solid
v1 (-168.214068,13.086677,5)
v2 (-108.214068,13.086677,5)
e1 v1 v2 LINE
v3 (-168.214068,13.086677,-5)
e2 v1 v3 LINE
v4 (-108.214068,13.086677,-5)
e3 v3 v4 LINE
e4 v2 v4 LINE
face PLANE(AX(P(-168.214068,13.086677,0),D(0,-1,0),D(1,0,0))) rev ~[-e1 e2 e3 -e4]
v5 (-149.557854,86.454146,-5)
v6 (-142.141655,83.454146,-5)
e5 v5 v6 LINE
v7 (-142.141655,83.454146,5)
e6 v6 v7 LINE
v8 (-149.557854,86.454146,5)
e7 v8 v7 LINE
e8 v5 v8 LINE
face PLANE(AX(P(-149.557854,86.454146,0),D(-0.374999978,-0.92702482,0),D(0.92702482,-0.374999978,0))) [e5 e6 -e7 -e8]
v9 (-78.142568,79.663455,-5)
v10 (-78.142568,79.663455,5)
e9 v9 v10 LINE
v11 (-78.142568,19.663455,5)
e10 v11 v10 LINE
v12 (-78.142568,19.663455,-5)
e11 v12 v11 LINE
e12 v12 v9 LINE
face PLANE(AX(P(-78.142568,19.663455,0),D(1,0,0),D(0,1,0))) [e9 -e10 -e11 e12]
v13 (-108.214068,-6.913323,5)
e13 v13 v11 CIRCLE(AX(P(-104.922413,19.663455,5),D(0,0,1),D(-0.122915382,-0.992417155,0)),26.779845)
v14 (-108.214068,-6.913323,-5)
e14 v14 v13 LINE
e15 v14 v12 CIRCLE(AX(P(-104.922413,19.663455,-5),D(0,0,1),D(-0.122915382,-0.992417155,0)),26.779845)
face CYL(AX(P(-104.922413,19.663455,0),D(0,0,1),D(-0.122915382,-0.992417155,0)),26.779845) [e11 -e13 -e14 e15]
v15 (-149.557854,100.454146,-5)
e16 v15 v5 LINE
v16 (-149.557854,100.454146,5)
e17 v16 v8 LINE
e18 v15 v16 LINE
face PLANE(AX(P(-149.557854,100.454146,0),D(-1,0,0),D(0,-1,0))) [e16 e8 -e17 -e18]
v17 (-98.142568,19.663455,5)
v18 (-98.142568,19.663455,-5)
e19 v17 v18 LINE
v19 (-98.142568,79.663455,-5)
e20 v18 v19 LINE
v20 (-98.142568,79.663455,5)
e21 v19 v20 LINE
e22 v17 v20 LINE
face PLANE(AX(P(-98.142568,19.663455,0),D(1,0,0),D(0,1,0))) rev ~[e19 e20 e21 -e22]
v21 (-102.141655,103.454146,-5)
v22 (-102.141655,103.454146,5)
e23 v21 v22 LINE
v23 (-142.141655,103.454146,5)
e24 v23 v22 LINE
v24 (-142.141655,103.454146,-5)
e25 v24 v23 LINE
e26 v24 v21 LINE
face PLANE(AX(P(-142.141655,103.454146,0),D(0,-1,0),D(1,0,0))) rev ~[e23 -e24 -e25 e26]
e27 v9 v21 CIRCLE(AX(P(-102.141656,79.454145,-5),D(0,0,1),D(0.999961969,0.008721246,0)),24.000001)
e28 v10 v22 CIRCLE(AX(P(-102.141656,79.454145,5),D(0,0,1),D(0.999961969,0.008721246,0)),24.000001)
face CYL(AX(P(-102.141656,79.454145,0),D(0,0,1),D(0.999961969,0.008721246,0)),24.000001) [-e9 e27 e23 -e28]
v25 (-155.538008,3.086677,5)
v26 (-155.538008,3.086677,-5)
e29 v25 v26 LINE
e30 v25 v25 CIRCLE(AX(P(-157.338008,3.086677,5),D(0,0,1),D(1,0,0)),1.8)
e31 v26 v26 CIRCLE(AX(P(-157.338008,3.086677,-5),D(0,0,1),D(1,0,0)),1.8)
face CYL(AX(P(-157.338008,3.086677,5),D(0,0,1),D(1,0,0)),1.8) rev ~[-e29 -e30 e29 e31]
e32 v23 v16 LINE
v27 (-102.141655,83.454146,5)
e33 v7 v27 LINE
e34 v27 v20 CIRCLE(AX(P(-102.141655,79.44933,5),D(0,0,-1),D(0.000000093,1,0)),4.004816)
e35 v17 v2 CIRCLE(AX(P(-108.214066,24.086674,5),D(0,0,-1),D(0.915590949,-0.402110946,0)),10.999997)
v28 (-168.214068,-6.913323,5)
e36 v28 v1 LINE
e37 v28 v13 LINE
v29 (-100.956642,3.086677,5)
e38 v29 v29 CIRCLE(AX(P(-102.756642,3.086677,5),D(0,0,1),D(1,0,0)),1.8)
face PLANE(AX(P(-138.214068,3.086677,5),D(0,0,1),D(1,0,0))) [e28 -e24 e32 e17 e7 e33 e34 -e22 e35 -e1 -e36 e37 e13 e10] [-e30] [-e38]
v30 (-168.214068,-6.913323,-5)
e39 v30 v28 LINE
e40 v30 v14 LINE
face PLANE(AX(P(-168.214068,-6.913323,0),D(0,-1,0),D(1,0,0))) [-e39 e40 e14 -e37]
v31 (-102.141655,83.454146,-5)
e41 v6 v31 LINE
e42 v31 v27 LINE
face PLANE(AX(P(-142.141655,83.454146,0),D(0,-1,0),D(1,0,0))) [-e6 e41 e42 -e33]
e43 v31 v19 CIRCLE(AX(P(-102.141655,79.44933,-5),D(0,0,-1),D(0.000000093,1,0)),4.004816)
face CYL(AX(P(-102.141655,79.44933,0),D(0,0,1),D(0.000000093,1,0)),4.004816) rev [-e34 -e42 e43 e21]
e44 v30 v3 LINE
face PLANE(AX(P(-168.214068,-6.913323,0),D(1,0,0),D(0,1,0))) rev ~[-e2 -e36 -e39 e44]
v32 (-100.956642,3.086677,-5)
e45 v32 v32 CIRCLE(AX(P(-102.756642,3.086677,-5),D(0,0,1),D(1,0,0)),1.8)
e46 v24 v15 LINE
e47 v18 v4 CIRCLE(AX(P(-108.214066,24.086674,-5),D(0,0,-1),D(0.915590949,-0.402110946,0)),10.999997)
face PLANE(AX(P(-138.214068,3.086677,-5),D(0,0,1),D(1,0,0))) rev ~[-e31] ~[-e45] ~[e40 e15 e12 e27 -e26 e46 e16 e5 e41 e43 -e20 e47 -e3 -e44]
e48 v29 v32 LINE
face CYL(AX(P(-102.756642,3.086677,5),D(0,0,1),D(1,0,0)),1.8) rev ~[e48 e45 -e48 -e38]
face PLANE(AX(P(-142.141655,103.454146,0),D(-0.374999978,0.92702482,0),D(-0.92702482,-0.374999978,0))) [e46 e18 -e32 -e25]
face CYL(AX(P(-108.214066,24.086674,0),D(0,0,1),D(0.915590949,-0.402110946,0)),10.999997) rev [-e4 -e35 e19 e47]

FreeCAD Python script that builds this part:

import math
import FreeCAD as App
import Part
import Sketcher
from FreeCAD import Vector

doc = App.newDocument("Part")
body = doc.addObject("PartDesign::Body", "Body")

sketch1 = body.newObject("Sketcher::SketchObject", "Sketch")
sketch1.AttachmentSupport = (doc.getObject("XY_Plane"), [""])
sketch1.MapMode = "FlatFace"
sketch1.addGeometry(Part.LineSegment(Vector(-168.2, 13.1, 0), Vector(-168.2, -6.9, 0)), False)
sketch1.addGeometry(Part.LineSegment(Vector(-168.2, -6.9, 0), Vector(-108.2, -6.9, 0)), False)
sketch1.addGeometry(Part.ArcOfCircle(Part.Circle(Vector(-104.9, 19.7, 0), Vector(0, 0, 1), 26.8), math.radians(-97), math.radians(0)), False)
sketch1.addGeometry(Part.LineSegment(Vector(-78.1, 19.7, 0), Vector(-78.1, 79.7, 0)), False)
sketch1.addGeometry(Part.ArcOfCircle(Part.Circle(Vector(-102.1, 79.5, 0), Vector(0, 0, 1), 24), math.radians(0), math.radians(90)), False)
sketch1.addGeometry(Part.LineSegment(Vector(-102.1, 103.5, 0), Vector(-142.1, 103.5, 0)), False)
sketch1.addGeometry(Part.LineSegment(Vector(-142.1, 103.5, 0), Vector(-149.6, 100.5, 0)), False)
sketch1.addGeometry(Part.LineSegment(Vector(-149.6, 100.5, 0), Vector(-149.6, 86.5, 0)), False)
sketch1.addGeometry(Part.LineSegment(Vector(-149.6, 86.5, 0), Vector(-142.1, 83.5, 0)), False)
sketch1.addGeometry(Part.LineSegment(Vector(-142.1, 83.5, 0), Vector(-102.1, 83.5, 0)), False)
sketch1.addGeometry(Part.ArcOfCircle(Part.Circle(Vector(-102.1, 79.4, 0), Vector(0, 0, 1), 4), math.radians(3), math.radians(90)), False)
sketch1.addGeometry(Part.LineSegment(Vector(-98.1, 79.7, 0), Vector(-98.1, 19.7, 0)), False)
sketch1.addGeometry(Part.ArcOfCircle(Part.Circle(Vector(-108.2, 24.1, 0), Vector(0, 0, 1), 11), math.radians(-90), math.radians(-24)), False)
sketch1.addGeometry(Part.LineSegment(Vector(-108.2, 13.1, 0), Vector(-168.2, 13.1, 0)), False)
sketch1.addConstraint(Sketcher.Constraint("Coincident", 0, 2, 1, 1))
sketch1.addConstraint(Sketcher.Constraint("Coincident", 1, 2, 2, 1))
sketch1.addConstraint(Sketcher.Constraint("Tangent", 2, 2, 3, 1))
sketch1.addConstraint(Sketcher.Constraint("Coincident", 3, 2, 4, 1))
sketch1.addConstraint(Sketcher.Constraint("Tangent", 4, 2, 5, 1))
sketch1.addConstraint(Sketcher.Constraint("Coincident", 5, 2, 6, 1))
sketch1.addConstraint(Sketcher.Constraint("Coincident", 6, 2, 7, 1))
sketch1.addConstraint(Sketcher.Constraint("Coincident", 7, 2, 8, 1))
sketch1.addConstraint(Sketcher.Constraint("Coincident", 8, 2, 9, 1))
sketch1.addConstraint(Sketcher.Constraint("Tangent", 9, 2, 10, 2))
sketch1.addConstraint(Sketcher.Constraint("Coincident", 10, 1, 11, 1))
sketch1.addConstraint(Sketcher.Constraint("Coincident", 11, 2, 12, 2))
sketch1.addConstraint(Sketcher.Constraint("Tangent", 12, 1, 13, 1))
sketch1.addConstraint(Sketcher.Constraint("Coincident", 13, 2, 0, 1))
sketch1.addConstraint(Sketcher.Constraint("Vertical", 0))
sketch1.addConstraint(Sketcher.Constraint("Horizontal", 1))
sketch1.addConstraint(Sketcher.Constraint("Vertical", 3))
sketch1.addConstraint(Sketcher.Constraint("Horizontal", 5))
sketch1.addConstraint(Sketcher.Constraint("Vertical", 7))
sketch1.addConstraint(Sketcher.Constraint("Horizontal", 9))
sketch1.addConstraint(Sketcher.Constraint("Vertical", 11))
sketch1.addConstraint(Sketcher.Constraint("Horizontal", 13))
sketch1.addConstraint(Sketcher.Constraint("Horizontal", 3, 2, 10, 1))
sketch1.addConstraint(Sketcher.Constraint("Horizontal", 2, 2, 11, 2))
sketch1.addConstraint(Sketcher.Constraint("Vertical", 4, 3, 10, 3))
sketch1.addConstraint(Sketcher.Constraint("Vertical", 12, 3, 1, 2))
sketch1.addConstraint(Sketcher.Constraint("Vertical", 5, 2, 8, 2))
sketch1.addConstraint(Sketcher.Constraint("Equal", 13, 3))
sketch1.addConstraint(Sketcher.Constraint("Equal", 6, 8))
sketch1.addConstraint(Sketcher.Constraint("Radius", 4, 24.000001))
sketch1.addConstraint(Sketcher.Constraint("DistanceX", 1, 1, 1, 2, 60.0))
sketch1.addConstraint(Sketcher.Constraint("DistanceX", 5, 2, 5, 1, 40.0))
sketch1.addConstraint(Sketcher.Constraint("DistanceY", 0, 2, 0, 1, 20.0))
sketch1.addConstraint(Sketcher.Constraint("DistanceY", 7, 2, 7, 1, 14.0))
sketch1.addConstraint(Sketcher.Constraint("Distance", 6, 8.0))
sketch1.addConstraint(Sketcher.Constraint("DistanceY", 6, 2, 5, 2, 3.0))
sketch1.addConstraint(Sketcher.Constraint("DistanceX", 10, 1, 3, 2, 20.0))
sketch1.addConstraint(Sketcher.Constraint("Radius", 2, 26.779845))
sketch1.addConstraint(Sketcher.Constraint("Radius", 10, 4.004816))
sketch1.addConstraint(Sketcher.Constraint("Radius", 12, 10.999997))
sketch1.addConstraint(Sketcher.Constraint("DistanceY", -1, 1, 10, 3, 79.44933))
sketch1.addConstraint(Sketcher.Constraint("DistanceX", 0, 2, -1, 1, 168.214068))
pad1 = body.newObject("PartDesign::Pad", "Pad")
pad1.Profile = sketch1
pad1.Length = 10
pad1.Midplane = True

sketch2 = body.newObject("Sketcher::SketchObject", "Sketch001")
sketch2.AttachmentSupport = (doc.getObject("XY_Plane"), [""])
sketch2.MapMode = "FlatFace"
sketch2.AttachmentOffset = App.Placement(Vector(0, 0, 5), App.Rotation())
sketch2.addGeometry(Part.Circle(Vector(-157.3, 3.1, 0), Vector(0, 0, 1), 1.8), False)
sketch2.addConstraint(Sketcher.Constraint("Diameter", 0, 3.6))
sketch2.addConstraint(Sketcher.Constraint("DistanceX", 0, 3, -1, 1, 157.338008))
sketch2.addConstraint(Sketcher.Constraint("DistanceY", -1, 1, 0, 3, 3.086677))
pocket1 = body.newObject("PartDesign::Pocket", "Pocket")
pocket1.Profile = sketch2
pocket1.Length = 26

sketch3 = body.newObject("Sketcher::SketchObject", "Sketch002")
sketch3.AttachmentSupport = (doc.getObject("XY_Plane"), [""])
sketch3.MapMode = "FlatFace"
sketch3.AttachmentOffset = App.Placement(Vector(0, 0, 5), App.Rotation())
sketch3.addGeometry(Part.Circle(Vector(-102.8, 3.1, 0), Vector(0, 0, 1), 1.8), False)
sketch3.addConstraint(Sketcher.Constraint("Diameter", 0, 3.6))
sketch3.addConstraint(Sketcher.Constraint("DistanceX", 0, 3, -1, 1, 102.756642))
sketch3.addConstraint(Sketcher.Constraint("DistanceY", -1, 1, 0, 3, 3.086677))
pocket2 = body.newObject("PartDesign::Pocket", "Pocket001")
pocket2.Profile = sketch3
pocket2.Length = 20

doc.recompute()
